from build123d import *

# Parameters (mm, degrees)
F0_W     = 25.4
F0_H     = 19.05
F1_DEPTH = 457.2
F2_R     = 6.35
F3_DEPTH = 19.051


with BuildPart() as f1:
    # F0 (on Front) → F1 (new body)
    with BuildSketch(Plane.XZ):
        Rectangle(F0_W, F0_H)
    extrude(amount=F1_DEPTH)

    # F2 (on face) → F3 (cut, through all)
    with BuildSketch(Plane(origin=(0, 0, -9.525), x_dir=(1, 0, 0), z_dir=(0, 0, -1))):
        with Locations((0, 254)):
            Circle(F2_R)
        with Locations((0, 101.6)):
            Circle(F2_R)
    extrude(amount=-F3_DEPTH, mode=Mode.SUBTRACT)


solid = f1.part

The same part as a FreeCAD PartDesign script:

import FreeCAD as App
import Part
import Sketcher

V = App.Vector
Q = App.Units.Quantity

doc = App.newDocument("Part")
body = doc.addObject("PartDesign::Body", "Body")

# Sketch on XZ plane
sketch1 = body.newObject("Sketcher::SketchObject", "Sketch")
sketch1.AttachmentSupport = (doc.getObject("XZ_Plane"), [""])
sketch1.MapMode = "FlatFace"
sketch1.addGeometry(Part.LineSegment(V(-13, 10, 0), V(-13, -10, 0)), False)
sketch1.addGeometry(Part.LineSegment(V(-13, -10, 0), V(13, -10, 0)), False)
sketch1.addGeometry(Part.LineSegment(V(13, -10, 0), V(13, 10, 0)), False)
sketch1.addGeometry(Part.LineSegment(V(13, 10, 0), V(-13, 10, 0)), False)
sketch1.addConstraint(Sketcher.Constraint("Coincident", 0, 2, 1, 1))
sketch1.addConstraint(Sketcher.Constraint("Coincident", 1, 2, 2, 1))
sketch1.addConstraint(Sketcher.Constraint("Coincident", 2, 2, 3, 1))
sketch1.addConstraint(Sketcher.Constraint("Coincident", 3, 2, 0, 1))
sketch1.addConstraint(Sketcher.Constraint("Vertical", 0))
sketch1.addConstraint(Sketcher.Constraint("Horizontal", 1))
sketch1.addConstraint(Sketcher.Constraint("Vertical", 2))
sketch1.addConstraint(Sketcher.Constraint("Horizontal", 3))
sketch1.addConstraint(Sketcher.Constraint("Symmetric", 0, 2, 2, 2, -1, 1))
sketch1.addConstraint(Sketcher.Constraint("DistanceX", 1, 1, 1, 2, Q("1 in")))
sketch1.addConstraint(Sketcher.Constraint("DistanceY", 0, 2, 0, 1, Q("0.75 in")))
pad1 = body.newObject("PartDesign::Pad", "Pad")
pad1.Profile = sketch1
pad1.Length = Q("18 in")

# Sketch on XY plane
sketch2 = body.newObject("Sketcher::SketchObject", "Sketch001")
sketch2.AttachmentSupport = (doc.getObject("XY_Plane"), [""])
sketch2.MapMode = "FlatFace"
sketch2.AttachmentOffset = App.Placement(V(0, 0, -0.375 * 25.4), App.Rotation())
sketch2.addGeometry(Part.Circle(V(0, -254, 0), V(0, 0, 1), 6), False)
sketch2.addGeometry(Part.Circle(V(0, -102, 0), V(0, 0, 1), 6), False)
sketch2.addConstraint(Sketcher.Constraint("Equal", 0, 1))
sketch2.addConstraint(Sketcher.Constraint("PointOnObject", 0, 3, -2))
sketch2.addConstraint(Sketcher.Constraint("PointOnObject", 1, 3, -2))
sketch2.addConstraint(Sketcher.Constraint("Diameter", 0, Q("0.5 in")))
sketch2.addConstraint(Sketcher.Constraint("DistanceY", 0, 3, -1, 1, Q("10 in")))
sketch2.addConstraint(Sketcher.Constraint("DistanceY", 1, 3, -1, 1, Q("4 in")))
pocket1 = body.newObject("PartDesign::Pocket", "Pocket")
pocket1.Profile = sketch2
pocket1.Type = "ThroughAll"
pocket1.Reversed = True

doc.recompute()
